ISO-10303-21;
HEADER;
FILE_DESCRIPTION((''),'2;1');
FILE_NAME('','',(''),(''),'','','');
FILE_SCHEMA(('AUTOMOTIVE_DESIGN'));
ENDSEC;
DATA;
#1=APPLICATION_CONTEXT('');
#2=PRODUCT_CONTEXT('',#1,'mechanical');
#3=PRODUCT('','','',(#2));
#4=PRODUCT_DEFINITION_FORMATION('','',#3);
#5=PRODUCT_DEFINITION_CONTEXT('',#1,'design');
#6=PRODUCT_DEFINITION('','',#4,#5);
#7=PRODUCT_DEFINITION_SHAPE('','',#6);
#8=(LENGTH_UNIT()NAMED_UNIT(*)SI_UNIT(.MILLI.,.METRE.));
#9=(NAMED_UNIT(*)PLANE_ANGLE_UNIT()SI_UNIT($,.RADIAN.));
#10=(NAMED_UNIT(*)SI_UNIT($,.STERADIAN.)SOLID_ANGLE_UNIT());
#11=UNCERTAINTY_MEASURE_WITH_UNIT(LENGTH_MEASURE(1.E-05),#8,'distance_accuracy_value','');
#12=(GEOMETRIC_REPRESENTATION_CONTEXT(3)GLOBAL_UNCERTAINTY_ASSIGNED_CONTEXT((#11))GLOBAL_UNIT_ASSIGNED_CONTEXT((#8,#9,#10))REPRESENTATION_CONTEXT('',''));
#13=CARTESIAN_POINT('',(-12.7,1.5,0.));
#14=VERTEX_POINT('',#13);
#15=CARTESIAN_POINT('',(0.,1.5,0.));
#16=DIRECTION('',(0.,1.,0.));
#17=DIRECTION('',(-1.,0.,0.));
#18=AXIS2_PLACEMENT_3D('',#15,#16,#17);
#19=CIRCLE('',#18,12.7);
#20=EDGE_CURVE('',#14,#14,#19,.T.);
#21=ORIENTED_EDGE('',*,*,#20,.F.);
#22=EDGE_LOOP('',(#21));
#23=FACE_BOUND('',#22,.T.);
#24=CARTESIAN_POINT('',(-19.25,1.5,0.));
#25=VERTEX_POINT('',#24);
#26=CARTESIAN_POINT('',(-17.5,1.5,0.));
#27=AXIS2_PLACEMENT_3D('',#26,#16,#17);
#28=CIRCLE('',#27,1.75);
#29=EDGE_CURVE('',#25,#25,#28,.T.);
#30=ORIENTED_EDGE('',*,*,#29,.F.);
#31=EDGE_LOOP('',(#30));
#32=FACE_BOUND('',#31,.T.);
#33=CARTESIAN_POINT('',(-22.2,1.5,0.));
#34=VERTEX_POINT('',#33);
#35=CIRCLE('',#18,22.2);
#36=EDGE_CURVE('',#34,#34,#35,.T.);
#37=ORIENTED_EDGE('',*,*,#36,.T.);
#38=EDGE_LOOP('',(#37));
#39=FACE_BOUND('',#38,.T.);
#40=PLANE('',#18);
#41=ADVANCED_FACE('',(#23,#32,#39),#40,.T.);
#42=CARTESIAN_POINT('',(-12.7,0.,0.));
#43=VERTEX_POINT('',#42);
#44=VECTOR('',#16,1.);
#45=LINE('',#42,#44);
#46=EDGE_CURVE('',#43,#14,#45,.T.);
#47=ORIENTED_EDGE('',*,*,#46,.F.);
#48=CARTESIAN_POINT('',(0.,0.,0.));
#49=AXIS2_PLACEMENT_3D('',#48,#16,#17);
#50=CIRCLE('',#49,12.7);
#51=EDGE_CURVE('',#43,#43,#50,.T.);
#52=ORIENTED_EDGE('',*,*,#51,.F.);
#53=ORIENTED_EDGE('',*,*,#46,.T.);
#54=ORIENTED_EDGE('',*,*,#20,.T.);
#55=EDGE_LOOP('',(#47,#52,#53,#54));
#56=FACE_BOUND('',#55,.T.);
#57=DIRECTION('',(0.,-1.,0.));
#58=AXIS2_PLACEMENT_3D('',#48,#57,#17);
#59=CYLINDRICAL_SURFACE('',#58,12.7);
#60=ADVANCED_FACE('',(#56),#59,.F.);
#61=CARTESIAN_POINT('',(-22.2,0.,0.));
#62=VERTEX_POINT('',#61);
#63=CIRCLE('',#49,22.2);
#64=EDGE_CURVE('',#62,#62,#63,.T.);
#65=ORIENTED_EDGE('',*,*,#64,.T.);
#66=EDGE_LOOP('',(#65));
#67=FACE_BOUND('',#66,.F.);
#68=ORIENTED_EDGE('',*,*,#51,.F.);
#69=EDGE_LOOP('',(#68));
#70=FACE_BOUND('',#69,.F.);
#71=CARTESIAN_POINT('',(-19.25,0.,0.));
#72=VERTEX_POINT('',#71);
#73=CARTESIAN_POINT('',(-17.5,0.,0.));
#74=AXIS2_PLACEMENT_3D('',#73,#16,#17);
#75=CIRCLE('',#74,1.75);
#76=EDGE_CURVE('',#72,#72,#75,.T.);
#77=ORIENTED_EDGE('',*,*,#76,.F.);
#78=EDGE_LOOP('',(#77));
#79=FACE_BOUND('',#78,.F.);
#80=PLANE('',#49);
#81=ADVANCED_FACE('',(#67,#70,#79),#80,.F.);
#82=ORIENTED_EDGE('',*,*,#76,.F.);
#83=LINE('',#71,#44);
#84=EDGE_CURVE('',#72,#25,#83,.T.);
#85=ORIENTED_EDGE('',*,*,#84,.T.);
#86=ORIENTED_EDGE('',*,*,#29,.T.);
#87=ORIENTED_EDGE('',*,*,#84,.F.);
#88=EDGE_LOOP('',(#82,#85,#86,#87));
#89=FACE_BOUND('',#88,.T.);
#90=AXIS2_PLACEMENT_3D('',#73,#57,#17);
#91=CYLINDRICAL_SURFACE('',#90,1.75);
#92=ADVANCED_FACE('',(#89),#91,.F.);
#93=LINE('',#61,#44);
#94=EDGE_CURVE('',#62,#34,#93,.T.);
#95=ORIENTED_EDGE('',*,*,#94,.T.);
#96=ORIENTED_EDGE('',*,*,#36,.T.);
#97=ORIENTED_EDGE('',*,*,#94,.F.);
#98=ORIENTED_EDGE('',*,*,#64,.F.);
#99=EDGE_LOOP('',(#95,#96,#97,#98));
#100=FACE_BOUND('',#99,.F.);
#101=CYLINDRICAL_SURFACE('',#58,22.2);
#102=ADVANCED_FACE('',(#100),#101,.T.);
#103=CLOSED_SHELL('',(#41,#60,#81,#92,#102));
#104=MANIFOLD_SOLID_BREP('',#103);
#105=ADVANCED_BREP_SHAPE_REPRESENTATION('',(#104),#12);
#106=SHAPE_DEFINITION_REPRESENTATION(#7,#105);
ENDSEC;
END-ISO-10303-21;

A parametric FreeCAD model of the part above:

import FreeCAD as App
import Part
import Sketcher

V = App.Vector

doc = App.newDocument("Part")
body = doc.addObject("PartDesign::Body", "Body")

sketch1 = body.newObject("Sketcher::SketchObject", "Sketch")
sketch1.AttachmentSupport = (doc.getObject("XZ_Plane"), [""])
sketch1.MapMode = "FlatFace"
sketch1.addGeometry([
    Part.Circle(V(0, 0, 0), V(0, 0, 1), 22.2),
    Part.Circle(V(0, 0, 0), V(0, 0, 1), 12.7),
    Part.Circle(V(-17.5, 0, 0), V(0, 0, 1), 1.75),
], False)
sketch1.addConstraint([
    Sketcher.Constraint("Coincident", 0, 3, -1, 1),
    Sketcher.Constraint("Coincident", 1, 3, -1, 1),
    Sketcher.Constraint("PointOnObject", 2, 3, -1),
    Sketcher.Constraint("Diameter", 0, 44.4),
    Sketcher.Constraint("Diameter", 1, 25.4),
    Sketcher.Constraint("Diameter", 2, 3.5),
    Sketcher.Constraint("DistanceX", 2, 3, -1, 1, 17.5),
])
pad1 = body.newObject("PartDesign::Pad", "Pad")
pad1.Profile = sketch1
pad1.Length = 1.5
pad1.Reversed = True

doc.recompute()
